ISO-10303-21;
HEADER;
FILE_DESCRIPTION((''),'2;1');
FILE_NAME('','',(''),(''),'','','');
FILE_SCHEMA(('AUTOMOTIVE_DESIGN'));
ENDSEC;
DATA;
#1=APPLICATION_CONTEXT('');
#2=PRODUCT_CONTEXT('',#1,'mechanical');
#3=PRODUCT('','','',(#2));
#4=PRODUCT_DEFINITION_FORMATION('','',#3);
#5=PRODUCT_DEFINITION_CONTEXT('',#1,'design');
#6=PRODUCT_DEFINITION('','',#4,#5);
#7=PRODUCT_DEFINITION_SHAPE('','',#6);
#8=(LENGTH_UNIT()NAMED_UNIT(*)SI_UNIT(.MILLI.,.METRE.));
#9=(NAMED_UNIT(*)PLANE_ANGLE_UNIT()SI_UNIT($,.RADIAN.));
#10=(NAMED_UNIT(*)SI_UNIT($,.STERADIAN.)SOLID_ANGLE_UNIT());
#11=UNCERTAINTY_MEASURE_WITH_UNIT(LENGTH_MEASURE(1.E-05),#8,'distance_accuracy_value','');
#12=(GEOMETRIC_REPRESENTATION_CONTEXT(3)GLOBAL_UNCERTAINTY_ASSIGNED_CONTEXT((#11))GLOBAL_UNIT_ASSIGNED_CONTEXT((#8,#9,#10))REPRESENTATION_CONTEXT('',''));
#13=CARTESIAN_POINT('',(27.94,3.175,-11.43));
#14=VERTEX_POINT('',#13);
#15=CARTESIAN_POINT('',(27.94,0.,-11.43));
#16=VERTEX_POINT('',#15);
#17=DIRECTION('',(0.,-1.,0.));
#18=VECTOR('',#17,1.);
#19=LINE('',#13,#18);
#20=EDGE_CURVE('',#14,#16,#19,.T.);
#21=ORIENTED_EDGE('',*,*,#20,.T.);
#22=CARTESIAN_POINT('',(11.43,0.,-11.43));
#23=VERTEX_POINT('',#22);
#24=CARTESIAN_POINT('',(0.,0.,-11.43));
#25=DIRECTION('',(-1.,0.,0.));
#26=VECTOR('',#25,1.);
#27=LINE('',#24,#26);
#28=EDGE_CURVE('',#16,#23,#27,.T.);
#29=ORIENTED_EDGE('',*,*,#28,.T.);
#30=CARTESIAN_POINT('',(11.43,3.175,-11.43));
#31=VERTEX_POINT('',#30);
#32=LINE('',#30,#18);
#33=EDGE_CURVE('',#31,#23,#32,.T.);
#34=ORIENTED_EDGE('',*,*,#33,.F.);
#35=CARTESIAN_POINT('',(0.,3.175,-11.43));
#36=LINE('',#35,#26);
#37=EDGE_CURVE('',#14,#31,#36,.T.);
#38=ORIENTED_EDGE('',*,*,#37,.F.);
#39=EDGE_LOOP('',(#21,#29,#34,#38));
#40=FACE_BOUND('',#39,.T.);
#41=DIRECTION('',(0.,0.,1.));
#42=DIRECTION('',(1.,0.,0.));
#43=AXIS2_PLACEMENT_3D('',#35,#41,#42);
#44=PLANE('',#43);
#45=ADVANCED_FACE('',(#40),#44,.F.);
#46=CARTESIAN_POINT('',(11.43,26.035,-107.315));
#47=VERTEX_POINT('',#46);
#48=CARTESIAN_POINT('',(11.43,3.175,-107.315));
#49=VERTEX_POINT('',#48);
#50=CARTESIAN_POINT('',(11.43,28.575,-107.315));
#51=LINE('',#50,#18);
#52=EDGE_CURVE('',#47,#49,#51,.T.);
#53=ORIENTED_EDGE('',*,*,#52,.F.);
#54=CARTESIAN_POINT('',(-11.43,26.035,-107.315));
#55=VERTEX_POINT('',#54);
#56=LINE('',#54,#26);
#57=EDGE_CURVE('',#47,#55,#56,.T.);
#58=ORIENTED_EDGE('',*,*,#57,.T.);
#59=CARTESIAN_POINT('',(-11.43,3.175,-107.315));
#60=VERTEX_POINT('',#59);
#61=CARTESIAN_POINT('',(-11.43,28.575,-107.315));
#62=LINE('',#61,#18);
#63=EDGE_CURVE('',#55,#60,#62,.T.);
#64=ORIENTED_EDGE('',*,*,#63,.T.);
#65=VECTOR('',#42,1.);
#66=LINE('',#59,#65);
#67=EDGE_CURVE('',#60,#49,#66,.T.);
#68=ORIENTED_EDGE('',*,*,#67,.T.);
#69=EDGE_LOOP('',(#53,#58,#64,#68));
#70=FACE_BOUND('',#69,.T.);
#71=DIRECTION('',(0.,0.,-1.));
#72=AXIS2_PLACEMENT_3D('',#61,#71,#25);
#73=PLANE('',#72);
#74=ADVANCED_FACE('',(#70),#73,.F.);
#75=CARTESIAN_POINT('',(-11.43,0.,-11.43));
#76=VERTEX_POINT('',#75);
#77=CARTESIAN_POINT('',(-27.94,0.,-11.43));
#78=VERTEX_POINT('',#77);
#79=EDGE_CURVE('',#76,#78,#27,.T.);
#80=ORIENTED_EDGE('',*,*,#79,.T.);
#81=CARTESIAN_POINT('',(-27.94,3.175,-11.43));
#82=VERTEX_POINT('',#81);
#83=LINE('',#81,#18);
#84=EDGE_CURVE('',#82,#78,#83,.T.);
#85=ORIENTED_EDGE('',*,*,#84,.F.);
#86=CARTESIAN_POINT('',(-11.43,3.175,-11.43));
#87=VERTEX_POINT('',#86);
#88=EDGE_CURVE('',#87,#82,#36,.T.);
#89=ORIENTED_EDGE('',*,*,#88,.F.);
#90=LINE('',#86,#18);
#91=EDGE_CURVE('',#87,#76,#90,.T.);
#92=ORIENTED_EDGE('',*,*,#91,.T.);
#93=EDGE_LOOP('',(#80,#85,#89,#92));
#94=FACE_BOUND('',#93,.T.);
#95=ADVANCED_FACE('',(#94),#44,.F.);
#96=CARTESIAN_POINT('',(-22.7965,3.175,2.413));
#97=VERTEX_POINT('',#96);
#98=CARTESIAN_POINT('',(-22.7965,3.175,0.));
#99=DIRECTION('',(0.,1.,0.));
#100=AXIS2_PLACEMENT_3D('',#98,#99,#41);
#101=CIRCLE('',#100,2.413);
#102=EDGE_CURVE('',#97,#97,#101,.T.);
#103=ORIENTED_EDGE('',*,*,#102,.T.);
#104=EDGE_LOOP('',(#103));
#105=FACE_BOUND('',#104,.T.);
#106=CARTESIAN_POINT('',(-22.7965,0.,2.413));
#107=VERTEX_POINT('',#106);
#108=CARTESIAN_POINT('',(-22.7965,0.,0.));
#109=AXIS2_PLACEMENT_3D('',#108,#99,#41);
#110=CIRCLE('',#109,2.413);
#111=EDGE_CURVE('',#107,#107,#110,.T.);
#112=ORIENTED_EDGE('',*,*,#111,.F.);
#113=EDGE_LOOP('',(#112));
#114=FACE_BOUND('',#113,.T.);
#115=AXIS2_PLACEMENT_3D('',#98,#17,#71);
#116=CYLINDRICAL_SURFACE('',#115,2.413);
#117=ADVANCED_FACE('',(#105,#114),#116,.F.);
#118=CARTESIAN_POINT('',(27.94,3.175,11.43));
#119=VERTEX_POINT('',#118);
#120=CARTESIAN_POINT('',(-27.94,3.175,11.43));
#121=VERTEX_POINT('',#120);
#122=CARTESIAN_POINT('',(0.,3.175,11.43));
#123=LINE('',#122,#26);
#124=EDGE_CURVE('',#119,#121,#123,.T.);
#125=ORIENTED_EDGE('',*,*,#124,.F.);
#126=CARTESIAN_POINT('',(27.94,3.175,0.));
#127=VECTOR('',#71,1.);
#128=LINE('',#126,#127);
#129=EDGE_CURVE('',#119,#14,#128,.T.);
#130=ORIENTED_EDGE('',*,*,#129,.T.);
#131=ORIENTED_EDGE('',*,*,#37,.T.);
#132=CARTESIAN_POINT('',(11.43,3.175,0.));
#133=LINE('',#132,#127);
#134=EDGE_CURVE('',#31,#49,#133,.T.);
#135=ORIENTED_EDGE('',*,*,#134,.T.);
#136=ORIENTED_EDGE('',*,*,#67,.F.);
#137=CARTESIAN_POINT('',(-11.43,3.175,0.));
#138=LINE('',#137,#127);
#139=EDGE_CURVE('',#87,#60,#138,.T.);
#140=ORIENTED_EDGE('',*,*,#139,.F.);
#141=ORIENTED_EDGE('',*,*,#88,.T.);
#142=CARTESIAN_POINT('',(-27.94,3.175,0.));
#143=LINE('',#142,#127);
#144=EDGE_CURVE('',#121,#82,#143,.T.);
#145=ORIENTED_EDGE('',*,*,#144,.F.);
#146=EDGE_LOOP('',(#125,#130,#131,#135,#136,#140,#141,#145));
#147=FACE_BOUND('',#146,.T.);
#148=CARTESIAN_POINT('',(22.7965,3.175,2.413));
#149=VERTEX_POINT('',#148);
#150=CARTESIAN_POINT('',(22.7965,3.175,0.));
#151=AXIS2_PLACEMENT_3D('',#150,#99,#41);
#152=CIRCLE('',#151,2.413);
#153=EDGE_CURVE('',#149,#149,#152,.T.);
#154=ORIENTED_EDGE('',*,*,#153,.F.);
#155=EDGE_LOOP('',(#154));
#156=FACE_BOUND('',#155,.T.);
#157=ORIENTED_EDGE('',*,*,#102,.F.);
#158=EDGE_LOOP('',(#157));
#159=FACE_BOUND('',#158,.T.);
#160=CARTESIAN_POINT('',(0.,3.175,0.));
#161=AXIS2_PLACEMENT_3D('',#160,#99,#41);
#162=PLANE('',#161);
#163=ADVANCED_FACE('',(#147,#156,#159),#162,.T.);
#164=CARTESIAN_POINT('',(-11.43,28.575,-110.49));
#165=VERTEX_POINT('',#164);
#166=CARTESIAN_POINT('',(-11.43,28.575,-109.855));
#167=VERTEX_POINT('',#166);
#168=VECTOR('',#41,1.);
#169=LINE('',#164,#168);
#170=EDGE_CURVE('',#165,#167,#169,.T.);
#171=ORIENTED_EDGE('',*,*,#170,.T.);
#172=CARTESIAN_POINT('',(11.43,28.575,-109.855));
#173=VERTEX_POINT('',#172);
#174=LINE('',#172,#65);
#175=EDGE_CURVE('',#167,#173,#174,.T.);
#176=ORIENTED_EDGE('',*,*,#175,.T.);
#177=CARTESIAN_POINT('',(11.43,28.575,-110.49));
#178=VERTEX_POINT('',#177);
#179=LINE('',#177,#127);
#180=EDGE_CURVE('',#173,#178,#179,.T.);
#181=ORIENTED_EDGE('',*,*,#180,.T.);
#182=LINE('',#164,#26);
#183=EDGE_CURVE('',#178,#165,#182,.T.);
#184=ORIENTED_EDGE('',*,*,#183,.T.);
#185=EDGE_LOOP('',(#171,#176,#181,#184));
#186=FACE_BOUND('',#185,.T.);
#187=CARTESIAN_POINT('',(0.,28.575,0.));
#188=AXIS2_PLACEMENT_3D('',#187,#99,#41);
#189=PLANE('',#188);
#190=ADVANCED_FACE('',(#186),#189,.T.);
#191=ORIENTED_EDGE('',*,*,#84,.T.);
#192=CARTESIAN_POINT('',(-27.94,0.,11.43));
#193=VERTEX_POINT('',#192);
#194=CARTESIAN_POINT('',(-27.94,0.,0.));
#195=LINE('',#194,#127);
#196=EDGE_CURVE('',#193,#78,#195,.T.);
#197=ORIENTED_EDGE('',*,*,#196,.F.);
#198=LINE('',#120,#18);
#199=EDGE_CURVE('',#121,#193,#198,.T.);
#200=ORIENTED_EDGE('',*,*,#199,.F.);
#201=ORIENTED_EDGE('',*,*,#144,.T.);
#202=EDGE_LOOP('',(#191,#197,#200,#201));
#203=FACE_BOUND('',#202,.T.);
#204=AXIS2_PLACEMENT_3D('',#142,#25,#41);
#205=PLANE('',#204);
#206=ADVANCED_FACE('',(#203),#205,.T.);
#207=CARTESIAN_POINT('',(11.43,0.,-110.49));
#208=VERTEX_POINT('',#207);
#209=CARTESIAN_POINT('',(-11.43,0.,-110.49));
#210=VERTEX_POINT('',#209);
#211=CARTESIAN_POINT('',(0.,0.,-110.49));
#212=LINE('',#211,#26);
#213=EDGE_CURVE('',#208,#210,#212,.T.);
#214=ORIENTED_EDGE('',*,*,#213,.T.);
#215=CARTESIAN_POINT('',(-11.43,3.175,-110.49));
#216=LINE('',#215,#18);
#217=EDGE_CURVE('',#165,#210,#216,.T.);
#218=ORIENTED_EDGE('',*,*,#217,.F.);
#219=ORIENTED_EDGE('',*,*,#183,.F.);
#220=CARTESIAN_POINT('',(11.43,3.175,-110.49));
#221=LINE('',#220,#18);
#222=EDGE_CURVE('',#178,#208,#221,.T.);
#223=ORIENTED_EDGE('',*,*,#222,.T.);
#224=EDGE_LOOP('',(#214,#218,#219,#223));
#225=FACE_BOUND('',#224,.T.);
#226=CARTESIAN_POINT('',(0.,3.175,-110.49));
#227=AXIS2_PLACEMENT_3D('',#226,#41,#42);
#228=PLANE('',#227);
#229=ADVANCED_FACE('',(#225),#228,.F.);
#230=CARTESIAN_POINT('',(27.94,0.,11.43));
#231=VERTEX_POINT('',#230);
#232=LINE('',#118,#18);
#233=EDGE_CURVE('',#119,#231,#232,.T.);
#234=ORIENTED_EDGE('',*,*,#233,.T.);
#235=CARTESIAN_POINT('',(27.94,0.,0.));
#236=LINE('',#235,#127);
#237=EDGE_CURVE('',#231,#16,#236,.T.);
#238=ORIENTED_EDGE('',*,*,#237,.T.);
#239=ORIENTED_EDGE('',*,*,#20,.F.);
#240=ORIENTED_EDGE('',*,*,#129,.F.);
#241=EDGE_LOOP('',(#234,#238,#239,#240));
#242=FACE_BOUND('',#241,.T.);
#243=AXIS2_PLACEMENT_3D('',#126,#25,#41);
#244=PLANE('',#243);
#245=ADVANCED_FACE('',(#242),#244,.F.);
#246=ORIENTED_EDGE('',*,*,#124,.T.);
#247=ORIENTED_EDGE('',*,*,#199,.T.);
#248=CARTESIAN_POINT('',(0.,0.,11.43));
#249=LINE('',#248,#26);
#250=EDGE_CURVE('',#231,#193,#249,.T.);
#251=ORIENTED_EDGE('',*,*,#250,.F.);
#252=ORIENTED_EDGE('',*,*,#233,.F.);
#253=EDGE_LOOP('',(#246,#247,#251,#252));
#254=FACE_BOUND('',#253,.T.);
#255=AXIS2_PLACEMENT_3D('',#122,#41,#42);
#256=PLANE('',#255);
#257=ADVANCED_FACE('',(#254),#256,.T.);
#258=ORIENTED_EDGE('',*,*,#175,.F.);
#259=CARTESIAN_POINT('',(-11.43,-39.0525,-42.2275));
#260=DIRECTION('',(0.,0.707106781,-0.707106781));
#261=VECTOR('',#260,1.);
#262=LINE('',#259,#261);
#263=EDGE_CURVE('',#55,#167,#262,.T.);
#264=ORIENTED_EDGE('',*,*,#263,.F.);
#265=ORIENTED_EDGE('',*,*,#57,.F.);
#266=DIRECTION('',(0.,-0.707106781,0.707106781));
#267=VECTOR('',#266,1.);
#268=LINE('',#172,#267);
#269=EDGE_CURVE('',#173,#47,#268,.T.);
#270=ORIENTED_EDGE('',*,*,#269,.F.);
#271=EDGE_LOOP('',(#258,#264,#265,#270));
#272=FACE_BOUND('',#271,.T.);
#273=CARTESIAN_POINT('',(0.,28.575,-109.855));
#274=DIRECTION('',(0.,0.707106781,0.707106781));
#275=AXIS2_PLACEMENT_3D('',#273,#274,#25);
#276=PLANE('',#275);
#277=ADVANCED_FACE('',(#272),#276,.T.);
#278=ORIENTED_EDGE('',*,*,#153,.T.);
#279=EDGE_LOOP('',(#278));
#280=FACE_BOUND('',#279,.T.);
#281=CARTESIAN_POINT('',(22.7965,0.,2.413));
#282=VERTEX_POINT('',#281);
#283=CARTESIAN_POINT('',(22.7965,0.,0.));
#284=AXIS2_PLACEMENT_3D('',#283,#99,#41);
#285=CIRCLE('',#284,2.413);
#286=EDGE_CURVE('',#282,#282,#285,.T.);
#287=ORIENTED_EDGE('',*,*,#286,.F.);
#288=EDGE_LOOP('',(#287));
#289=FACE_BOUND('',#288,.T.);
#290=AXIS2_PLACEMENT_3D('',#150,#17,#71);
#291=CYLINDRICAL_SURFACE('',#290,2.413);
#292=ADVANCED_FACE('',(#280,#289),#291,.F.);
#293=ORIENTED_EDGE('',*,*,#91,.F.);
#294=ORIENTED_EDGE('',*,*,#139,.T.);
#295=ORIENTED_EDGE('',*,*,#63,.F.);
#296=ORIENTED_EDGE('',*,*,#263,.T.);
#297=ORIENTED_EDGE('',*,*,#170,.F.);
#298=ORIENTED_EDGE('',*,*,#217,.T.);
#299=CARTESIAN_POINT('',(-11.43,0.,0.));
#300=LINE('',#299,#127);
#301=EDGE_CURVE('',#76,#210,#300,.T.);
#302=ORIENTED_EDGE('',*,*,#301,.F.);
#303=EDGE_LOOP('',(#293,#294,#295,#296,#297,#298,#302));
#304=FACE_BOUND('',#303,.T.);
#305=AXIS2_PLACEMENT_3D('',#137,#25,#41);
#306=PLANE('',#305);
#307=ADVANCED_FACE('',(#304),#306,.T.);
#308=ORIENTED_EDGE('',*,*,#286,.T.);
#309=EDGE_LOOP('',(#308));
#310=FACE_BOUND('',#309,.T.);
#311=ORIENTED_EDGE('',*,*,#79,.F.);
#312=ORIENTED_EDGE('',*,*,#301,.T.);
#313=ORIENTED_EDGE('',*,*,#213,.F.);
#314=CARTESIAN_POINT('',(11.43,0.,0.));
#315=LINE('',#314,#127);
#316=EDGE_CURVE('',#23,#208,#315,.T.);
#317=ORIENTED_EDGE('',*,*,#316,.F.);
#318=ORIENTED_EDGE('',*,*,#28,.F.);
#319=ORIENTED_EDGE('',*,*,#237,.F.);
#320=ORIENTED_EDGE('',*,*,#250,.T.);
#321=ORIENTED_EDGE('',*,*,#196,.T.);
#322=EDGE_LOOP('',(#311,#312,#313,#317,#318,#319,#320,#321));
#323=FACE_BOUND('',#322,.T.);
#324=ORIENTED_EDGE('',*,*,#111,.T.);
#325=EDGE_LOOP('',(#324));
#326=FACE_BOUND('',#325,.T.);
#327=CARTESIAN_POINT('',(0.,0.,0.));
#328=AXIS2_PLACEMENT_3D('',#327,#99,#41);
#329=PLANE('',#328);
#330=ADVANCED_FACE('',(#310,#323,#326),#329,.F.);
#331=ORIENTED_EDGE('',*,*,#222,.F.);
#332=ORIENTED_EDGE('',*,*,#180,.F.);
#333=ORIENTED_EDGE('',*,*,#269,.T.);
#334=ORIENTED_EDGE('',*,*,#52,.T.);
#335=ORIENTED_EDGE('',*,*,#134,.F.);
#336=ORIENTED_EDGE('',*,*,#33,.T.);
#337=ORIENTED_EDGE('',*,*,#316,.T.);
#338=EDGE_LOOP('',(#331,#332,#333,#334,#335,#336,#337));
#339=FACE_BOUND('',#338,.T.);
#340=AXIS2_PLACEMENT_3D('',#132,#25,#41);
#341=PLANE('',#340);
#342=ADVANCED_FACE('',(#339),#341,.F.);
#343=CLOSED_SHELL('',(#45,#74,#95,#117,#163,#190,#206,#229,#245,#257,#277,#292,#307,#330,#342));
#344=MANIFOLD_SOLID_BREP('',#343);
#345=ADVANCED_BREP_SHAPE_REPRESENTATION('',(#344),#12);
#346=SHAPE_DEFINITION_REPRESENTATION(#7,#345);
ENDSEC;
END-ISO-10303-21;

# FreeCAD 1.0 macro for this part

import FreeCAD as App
import Part
import Sketcher

V = App.Vector
Q = App.Units.Quantity


def edges_at(feature, points):
    """Names of the edges that pass closest to the given points."""
    edges = feature.Shape.Edges
    near = lambda p: min(range(len(edges)), key=lambda i: edges[i].distToShape(Part.Vertex(*p))[0])
    return sorted({f"Edge{near(p) + 1}" for p in points})


def add_polygon(sketch, points):
    """Adds a closed chain of lines whose ends are joined by coincident constraints."""
    first, n = sketch.GeometryCount, len(points)
    for a, b in zip(points, points[1:] + points[:1]):
        sketch.addGeometry(Part.LineSegment(App.Vector(*a, 0), App.Vector(*b, 0)), False)
    for i in range(n):
        sketch.addConstraint(Sketcher.Constraint("Coincident", first + i, 2, first + (i + 1) % n, 1))

doc = App.newDocument("Part")
body = doc.addObject("PartDesign::Body", "Body")

# Sketch on XZ plane
sketch1 = body.newObject("Sketcher::SketchObject", "Sketch")
sketch1.AttachmentSupport = (doc.getObject("XZ_Plane"), [""])
sketch1.MapMode = "FlatFace"
add_polygon(sketch1, [(-27.9, 11.4), (27.9, 11.4), (27.9, -11.4), (11.4, -11.4), (11.4, -110.5), (-11.4, -110.5), (-11.4, -11.4), (-27.9, -11.4)])  # lines 0-7
sketch1.addGeometry(Part.Circle(V(-22.8, 0, 0), V(0, 0, 1), 2.4), False)  # 8
sketch1.addGeometry(Part.Circle(V(22.8, 0, 0), V(0, 0, 1), 2.4), False)  # 9
sketch1.addConstraint(Sketcher.Constraint("Horizontal", 0))
sketch1.addConstraint(Sketcher.Constraint("Vertical", 1))
sketch1.addConstraint(Sketcher.Constraint("Horizontal", 2))
sketch1.addConstraint(Sketcher.Constraint("Vertical", 3))
sketch1.addConstraint(Sketcher.Constraint("Horizontal", 4))
sketch1.addConstraint(Sketcher.Constraint("Vertical", 5))
sketch1.addConstraint(Sketcher.Constraint("Horizontal", 6))
sketch1.addConstraint(Sketcher.Constraint("Vertical", 7))
sketch1.addConstraint(Sketcher.Constraint("Equal", 8, 9))
sketch1.addConstraint(Sketcher.Constraint("Symmetric", 8, 3, 9, 3, -1, 1))
sketch1.addConstraint(Sketcher.Constraint("Symmetric", 0, 2, 6, 2, -1, 1))
sketch1.addConstraint(Sketcher.Constraint("Symmetric", 2, 2, 5, 2, -2))
sketch1.addConstraint(Sketcher.Constraint("PointOnObject", 8, 3, -1))
sketch1.addConstraint(Sketcher.Constraint("Equal", 4, 1))
sketch1.addConstraint(Sketcher.Constraint("Diameter", 8, Q("0.19 in")))
sketch1.addConstraint(Sketcher.Constraint("DistanceX", 0, 1, 0, 2, Q("2.2 in")))
sketch1.addConstraint(Sketcher.Constraint("DistanceX", 4, 2, 4, 1, Q("0.9 in")))
sketch1.addConstraint(Sketcher.Constraint("DistanceY", 3, 2, 3, 1, Q("3.9 in")))
sketch1.addConstraint(Sketcher.Constraint("DistanceX", 8, 3, 9, 3, Q("1.795 in")))
pad1 = body.newObject("PartDesign::Pad", "Pad")
pad1.Profile = sketch1
pad1.Length = Q("0.125 in")
pad1.Reversed = True

# Sketch on XZ plane
sketch2 = body.newObject("Sketcher::SketchObject", "Sketch001")
sketch2.AttachmentSupport = (doc.getObject("XZ_Plane"), [""])
sketch2.MapMode = "FlatFace"
sketch2.AttachmentOffset = App.Placement(V(0, 0, -0.125 * 25.4), App.Rotation())
add_polygon(sketch2, [(-11.4, -110.5), (-11.4, -107.3), (11.4, -107.3), (11.4, -110.5)])  # lines 0-3
sketch2.addConstraint(Sketcher.Constraint("Vertical", 0))
sketch2.addConstraint(Sketcher.Constraint("Horizontal", 1))
sketch2.addConstraint(Sketcher.Constraint("Vertical", 2))
sketch2.addConstraint(Sketcher.Constraint("Horizontal", 3))
sketch2.addConstraint(Sketcher.Constraint("DistanceX", 1, 1, 1, 2, Q("0.9 in")))
sketch2.addConstraint(Sketcher.Constraint("DistanceY", 0, 1, 0, 2, Q("0.125 in")))
sketch2.addConstraint(Sketcher.Constraint("DistanceX", 0, 2, -1, 1, Q("0.45 in")))
sketch2.addConstraint(Sketcher.Constraint("DistanceY", 2, 2, -1, 1, Q("4.35 in")))
pad2 = body.newObject("PartDesign::Pad", "Pad001")
pad2.Profile = sketch2
pad2.Length = Q("1 in")
pad2.Reversed = True
doc.recompute()

chamfer = body.newObject("PartDesign::Chamfer", "Chamfer")
chamfer.Base = (pad2, edges_at(pad2, [(0, 28.575, -107.315)]))
chamfer.Size = Q("0.1 in")

doc.recompute()
